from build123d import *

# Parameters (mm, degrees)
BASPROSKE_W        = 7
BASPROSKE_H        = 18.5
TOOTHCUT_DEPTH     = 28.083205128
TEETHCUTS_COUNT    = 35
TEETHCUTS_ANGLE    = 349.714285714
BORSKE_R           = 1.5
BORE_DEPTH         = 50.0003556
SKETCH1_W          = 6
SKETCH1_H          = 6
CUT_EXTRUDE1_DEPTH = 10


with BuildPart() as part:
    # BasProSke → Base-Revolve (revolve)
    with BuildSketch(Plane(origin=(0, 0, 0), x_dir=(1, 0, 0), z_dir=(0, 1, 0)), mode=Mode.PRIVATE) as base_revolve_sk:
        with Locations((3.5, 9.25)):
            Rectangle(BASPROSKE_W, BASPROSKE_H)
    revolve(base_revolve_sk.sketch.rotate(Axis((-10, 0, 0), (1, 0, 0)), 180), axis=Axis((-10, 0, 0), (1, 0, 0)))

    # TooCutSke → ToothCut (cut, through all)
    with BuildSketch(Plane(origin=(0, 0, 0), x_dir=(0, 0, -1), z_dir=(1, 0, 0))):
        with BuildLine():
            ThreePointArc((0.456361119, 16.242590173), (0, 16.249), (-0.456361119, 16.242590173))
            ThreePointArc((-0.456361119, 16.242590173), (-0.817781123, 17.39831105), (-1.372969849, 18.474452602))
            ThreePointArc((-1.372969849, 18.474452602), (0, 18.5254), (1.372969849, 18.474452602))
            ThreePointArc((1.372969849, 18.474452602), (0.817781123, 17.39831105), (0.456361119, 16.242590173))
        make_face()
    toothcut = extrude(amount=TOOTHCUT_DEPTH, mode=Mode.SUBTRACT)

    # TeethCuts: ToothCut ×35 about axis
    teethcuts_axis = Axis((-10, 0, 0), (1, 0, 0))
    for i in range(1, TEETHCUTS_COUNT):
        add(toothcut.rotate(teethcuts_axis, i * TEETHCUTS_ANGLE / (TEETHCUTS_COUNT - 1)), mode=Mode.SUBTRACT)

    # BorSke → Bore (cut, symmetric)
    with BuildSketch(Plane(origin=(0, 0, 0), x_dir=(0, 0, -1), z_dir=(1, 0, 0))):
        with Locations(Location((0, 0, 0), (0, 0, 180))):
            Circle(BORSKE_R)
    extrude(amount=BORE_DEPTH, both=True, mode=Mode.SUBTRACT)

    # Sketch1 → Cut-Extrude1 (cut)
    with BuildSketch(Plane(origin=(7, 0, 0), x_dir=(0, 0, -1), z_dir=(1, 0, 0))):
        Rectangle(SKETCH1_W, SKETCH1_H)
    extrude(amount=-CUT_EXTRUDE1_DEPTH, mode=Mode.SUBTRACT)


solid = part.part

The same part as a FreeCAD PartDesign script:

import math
import FreeCAD as App
import Part
import Sketcher

doc = App.newDocument("Part")
body = doc.addObject("PartDesign::Body", "Body")

sketch1 = doc.addObject("Sketcher::SketchObject", "Sketch")
body.addObject(sketch1)
sketch1.AttachmentSupport = (doc.XZ_Plane, [""])
sketch1.MapMode = "FlatFace"
sketch1.addGeometry([
    Part.LineSegment(App.Vector(0, -18, 0), App.Vector(0, 0, 0)),
    Part.LineSegment(App.Vector(0, 0, 0), App.Vector(7, 0, 0)),
    Part.LineSegment(App.Vector(7, 0, 0), App.Vector(7, -18, 0)),
    Part.LineSegment(App.Vector(7, -18, 0), App.Vector(0, -18, 0)),
], False)
sketch1.addConstraint([
    Sketcher.Constraint("Coincident", 0, 2, 1, 1),
    Sketcher.Constraint("Coincident", 1, 2, 2, 1),
    Sketcher.Constraint("Coincident", 2, 2, 3, 1),
    Sketcher.Constraint("Coincident", 3, 2, 0, 1),
    Sketcher.Constraint("Vertical", 0),
    Sketcher.Constraint("Horizontal", 1),
    Sketcher.Constraint("Vertical", 2),
    Sketcher.Constraint("Horizontal", 3),
    Sketcher.Constraint("Coincident", 0, 2, -1, 1),
    Sketcher.Constraint("DistanceX", 1, 1, 1, 2, 7.0),
    Sketcher.Constraint("DistanceY", 0, 1, 0, 2, 18.5),
])
revolution = doc.addObject("PartDesign::Revolution", "Revolution")
body.addObject(revolution)
revolution.Profile = sketch1
revolution.ReferenceAxis = (sketch1, ["H_Axis"])
revolution.Angle = 360

sketch2 = doc.addObject("Sketcher::SketchObject", "Sketch001")
body.addObject(sketch2)
sketch2.AttachmentSupport = (doc.YZ_Plane, [""])
sketch2.MapMode = "FlatFace"
sketch2.addGeometry([
    Part.ArcOfCircle(Part.Circle(App.Vector(0, 0, 0), App.Vector(0, 0, 1), 16.2), math.radians(-1.61), math.radians(1.61)),
    Part.ArcOfCircle(Part.Circle(App.Vector(14.7, -7.3, 0), App.Vector(0, 0, 1), 7), math.radians(57.75), math.radians(77.6)),
    Part.ArcOfCircle(Part.Circle(App.Vector(0, 0, 0), App.Vector(0, 0, 1), 18.5), math.radians(-4.25), math.radians(4.25)),
    Part.ArcOfCircle(Part.Circle(App.Vector(14.7, 7.3, 0), App.Vector(0, 0, 1), 7), math.radians(-77.6), math.radians(-57.75)),
], False)
sketch2.addConstraint([
    Sketcher.Constraint("Coincident", 0, 1, 1, 2),
    Sketcher.Constraint("Coincident", 1, 1, 2, 1),
    Sketcher.Constraint("Coincident", 2, 2, 3, 2),
    Sketcher.Constraint("Coincident", 3, 1, 0, 2),
    Sketcher.Constraint("Coincident", 0, 3, -1, 1),
    Sketcher.Constraint("Coincident", 2, 3, -1, 1),
    Sketcher.Constraint("Equal", 1, 3),
    Sketcher.Constraint("Symmetric", 1, 3, 3, 3, -1),
    Sketcher.Constraint("Radius", 1, 7.0),
    Sketcher.Constraint("Radius", 0, 16.249),
    Sketcher.Constraint("Radius", 2, 18.5254),
    Sketcher.Constraint("DistanceY", 1, 3, 1, 1, 5.92),
    Sketcher.Constraint("DistanceX", -1, 1, 1, 3, 14.739001),
])
pocket1 = doc.addObject("PartDesign::Pocket", "Pocket")
body.addObject(pocket1)
pocket1.Profile = sketch2
pocket1.Type = "ThroughAll"
pocket1.Reversed = True
doc.recompute()

polarpattern = doc.addObject("PartDesign::PolarPattern", "PolarPattern")
body.addObject(polarpattern)
polarpattern.Originals = [pocket1]
polarpattern.Axis = (doc.X_Axis, [""])
polarpattern.Angle = 360
polarpattern.Occurrences = 35
body.Tip = polarpattern

sketch3 = doc.addObject("Sketcher::SketchObject", "Sketch002")
body.addObject(sketch3)
sketch3.AttachmentSupport = (doc.YZ_Plane, [""])
sketch3.MapMode = "FlatFace"
sketch3.addGeometry(Part.Circle(App.Vector(0, 0, 0), App.Vector(0, 0, 1), 1.5), False)
sketch3.addConstraint([
    Sketcher.Constraint("Coincident", 0, 3, -1, 1),
    Sketcher.Constraint("Diameter", 0, 3.0),
])
pocket2 = doc.addObject("PartDesign::Pocket", "Pocket001")
body.addObject(pocket2)
pocket2.Profile = sketch3
pocket2.Length = 100.000711
pocket2.Midplane = True

sketch4 = doc.addObject("Sketcher::SketchObject", "Sketch003")
body.addObject(sketch4)
sketch4.AttachmentSupport = (doc.YZ_Plane, [""])
sketch4.MapMode = "FlatFace"
sketch4.AttachmentOffset = App.Placement(App.Vector(0, 0, 7), App.Rotation())
sketch4.addGeometry([
    Part.LineSegment(App.Vector(3, 3, 0), App.Vector(-3, 3, 0)),
    Part.LineSegment(App.Vector(-3, 3, 0), App.Vector(-3, -3, 0)),
    Part.LineSegment(App.Vector(-3, -3, 0), App.Vector(3, -3, 0)),
    Part.LineSegment(App.Vector(3, -3, 0), App.Vector(3, 3, 0)),
], False)
sketch4.addConstraint([
    Sketcher.Constraint("Coincident", 0, 2, 1, 1),
    Sketcher.Constraint("Coincident", 1, 2, 2, 1),
    Sketcher.Constraint("Coincident", 2, 2, 3, 1),
    Sketcher.Constraint("Coincident", 3, 2, 0, 1),
    Sketcher.Constraint("Horizontal", 0),
    Sketcher.Constraint("Vertical", 1),
    Sketcher.Constraint("Horizontal", 2),
    Sketcher.Constraint("Vertical", 3),
    Sketcher.Constraint("Symmetric", 0, 2, 2, 2, -1, 1),
    Sketcher.Constraint("Equal", 2, 1),
    Sketcher.Constraint("DistanceX", 0, 2, 0, 1, 6.0),
])
pocket3 = doc.addObject("PartDesign::Pocket", "Pocket002")
body.addObject(pocket3)
pocket3.Profile = sketch4
pocket3.Length = 10

doc.recompute()
